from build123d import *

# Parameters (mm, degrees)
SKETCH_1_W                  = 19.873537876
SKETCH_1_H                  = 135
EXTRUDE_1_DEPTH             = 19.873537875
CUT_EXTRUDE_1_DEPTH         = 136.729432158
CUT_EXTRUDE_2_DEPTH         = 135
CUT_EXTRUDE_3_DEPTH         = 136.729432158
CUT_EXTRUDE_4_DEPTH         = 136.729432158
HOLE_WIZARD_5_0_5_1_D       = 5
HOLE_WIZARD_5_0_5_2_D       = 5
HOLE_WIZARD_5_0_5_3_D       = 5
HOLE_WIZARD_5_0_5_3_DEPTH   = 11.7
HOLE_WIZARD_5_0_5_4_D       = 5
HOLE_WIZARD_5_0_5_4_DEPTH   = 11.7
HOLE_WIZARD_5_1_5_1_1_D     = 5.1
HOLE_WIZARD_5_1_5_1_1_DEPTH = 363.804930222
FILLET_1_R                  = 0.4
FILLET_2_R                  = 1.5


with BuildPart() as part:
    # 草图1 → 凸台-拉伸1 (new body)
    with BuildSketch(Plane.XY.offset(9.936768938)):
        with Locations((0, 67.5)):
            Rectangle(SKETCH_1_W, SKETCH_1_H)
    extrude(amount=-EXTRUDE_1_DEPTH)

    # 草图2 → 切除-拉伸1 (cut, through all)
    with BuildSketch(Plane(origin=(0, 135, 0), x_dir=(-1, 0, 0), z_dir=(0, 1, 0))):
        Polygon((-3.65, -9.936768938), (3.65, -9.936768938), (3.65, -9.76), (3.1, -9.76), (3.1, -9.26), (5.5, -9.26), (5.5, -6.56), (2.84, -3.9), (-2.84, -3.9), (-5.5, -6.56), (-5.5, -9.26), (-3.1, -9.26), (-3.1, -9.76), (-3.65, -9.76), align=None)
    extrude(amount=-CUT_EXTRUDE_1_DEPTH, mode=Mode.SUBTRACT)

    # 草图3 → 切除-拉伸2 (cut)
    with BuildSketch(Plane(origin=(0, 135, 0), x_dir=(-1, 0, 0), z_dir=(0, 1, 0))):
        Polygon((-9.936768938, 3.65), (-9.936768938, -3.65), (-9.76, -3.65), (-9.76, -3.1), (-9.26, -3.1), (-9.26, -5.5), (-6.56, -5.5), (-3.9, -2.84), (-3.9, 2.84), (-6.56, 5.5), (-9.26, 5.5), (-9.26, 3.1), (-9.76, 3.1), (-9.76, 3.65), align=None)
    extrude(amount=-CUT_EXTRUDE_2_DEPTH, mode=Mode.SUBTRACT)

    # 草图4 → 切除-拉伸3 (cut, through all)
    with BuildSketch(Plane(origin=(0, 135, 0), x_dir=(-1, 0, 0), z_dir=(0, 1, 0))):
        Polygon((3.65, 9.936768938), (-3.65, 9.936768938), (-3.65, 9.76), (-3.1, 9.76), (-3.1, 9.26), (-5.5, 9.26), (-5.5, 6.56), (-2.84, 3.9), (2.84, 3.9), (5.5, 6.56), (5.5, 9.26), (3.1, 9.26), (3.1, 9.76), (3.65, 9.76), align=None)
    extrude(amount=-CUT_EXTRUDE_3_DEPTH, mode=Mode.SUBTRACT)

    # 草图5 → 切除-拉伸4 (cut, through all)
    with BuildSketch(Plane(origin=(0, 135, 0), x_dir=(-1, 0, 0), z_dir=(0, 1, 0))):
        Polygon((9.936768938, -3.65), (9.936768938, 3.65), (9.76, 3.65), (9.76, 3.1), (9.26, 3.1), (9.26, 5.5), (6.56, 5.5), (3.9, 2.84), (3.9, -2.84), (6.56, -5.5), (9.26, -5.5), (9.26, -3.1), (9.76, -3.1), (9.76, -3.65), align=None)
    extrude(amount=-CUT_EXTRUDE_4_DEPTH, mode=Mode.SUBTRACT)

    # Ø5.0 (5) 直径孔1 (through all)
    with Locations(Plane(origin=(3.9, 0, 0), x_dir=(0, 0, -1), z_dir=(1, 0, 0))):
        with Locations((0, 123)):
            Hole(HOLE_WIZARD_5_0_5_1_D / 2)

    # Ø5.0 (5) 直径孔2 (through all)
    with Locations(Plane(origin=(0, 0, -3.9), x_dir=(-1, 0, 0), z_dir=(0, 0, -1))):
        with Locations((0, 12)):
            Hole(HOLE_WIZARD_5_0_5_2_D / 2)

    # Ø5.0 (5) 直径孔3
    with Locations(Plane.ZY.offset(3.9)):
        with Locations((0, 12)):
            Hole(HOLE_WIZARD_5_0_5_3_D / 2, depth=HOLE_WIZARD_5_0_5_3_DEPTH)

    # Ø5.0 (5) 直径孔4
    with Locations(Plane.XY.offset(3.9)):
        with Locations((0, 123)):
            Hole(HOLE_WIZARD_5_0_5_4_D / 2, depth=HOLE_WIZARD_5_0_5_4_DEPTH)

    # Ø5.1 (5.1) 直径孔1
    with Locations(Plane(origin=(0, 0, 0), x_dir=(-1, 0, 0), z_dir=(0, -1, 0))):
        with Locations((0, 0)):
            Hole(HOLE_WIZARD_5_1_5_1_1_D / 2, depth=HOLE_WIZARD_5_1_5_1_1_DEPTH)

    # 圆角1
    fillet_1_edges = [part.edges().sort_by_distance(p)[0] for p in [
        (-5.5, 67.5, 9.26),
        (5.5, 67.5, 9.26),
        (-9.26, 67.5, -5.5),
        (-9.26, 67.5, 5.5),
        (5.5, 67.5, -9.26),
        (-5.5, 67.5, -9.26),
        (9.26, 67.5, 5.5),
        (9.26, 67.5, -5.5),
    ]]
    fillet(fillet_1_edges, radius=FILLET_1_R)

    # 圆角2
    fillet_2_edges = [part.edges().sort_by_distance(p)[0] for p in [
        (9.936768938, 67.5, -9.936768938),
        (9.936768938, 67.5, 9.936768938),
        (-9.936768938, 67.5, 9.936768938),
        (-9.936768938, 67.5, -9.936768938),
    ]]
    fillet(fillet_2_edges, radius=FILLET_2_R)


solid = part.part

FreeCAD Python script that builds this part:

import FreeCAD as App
import Part
import Sketcher
from FreeCAD import Vector
Q = App.Units.Quantity


def edges_at(feature, points):
    """Names of the edges that pass closest to the given points."""
    edges = feature.Shape.Edges
    near = lambda p: min(range(len(edges)), key=lambda i: edges[i].distToShape(Part.Vertex(*p))[0])
    return sorted({f"Edge{near(p) + 1}" for p in points})


def add_polygon(sketch, points):
    """Adds a closed chain of lines whose ends are joined by coincident constraints."""
    first, n = sketch.GeometryCount, len(points)
    for a, b in zip(points, points[1:] + points[:1]):
        sketch.addGeometry(Part.LineSegment(App.Vector(*a, 0), App.Vector(*b, 0)), False)
    for i in range(n):
        sketch.addConstraint(Sketcher.Constraint("Coincident", first + i, 2, first + (i + 1) % n, 1))

doc = App.newDocument("Part")
body = doc.addObject("PartDesign::Body", "Body")

# Sketch on XY plane
sketch1 = body.newObject("Sketcher::SketchObject", "Sketch")
sketch1.AttachmentSupport = (doc.getObject("XY_Plane"), [""])
sketch1.MapMode = "FlatFace"
sketch1.AttachmentOffset = App.Placement(Vector(0, 0, 9.936769), App.Rotation())
add_polygon(sketch1, [(-9.936769, 135), (-9.936769, 0), (9.936769, 0), (9.936769, 135)])  # lines 0-3
sketch1.addConstraint(Sketcher.Constraint("Vertical", 0))
sketch1.addConstraint(Sketcher.Constraint("Horizontal", 1))
sketch1.addConstraint(Sketcher.Constraint("Vertical", 2))
sketch1.addConstraint(Sketcher.Constraint("Horizontal", 3))
sketch1.addConstraint(Sketcher.Constraint("Symmetric", 0, 2, 1, 2, -1, 1))
sketch1.addConstraint(Sketcher.Constraint("DistanceY", 0, 2, 0, 1, Q("135 mm")))
sketch1.addConstraint(Sketcher.Constraint("DistanceX", 1, 1, 1, 2, Q("19.873538 mm")))
pad1 = body.newObject("PartDesign::Pad", "Pad")
pad1.Profile = sketch1
pad1.Length = 19.873538
pad1.Reversed = True

# Sketch on XZ plane
sketch2 = body.newObject("Sketcher::SketchObject", "Sketch001")
sketch2.AttachmentSupport = (doc.getObject("XZ_Plane"), [""])
sketch2.MapMode = "FlatFace"
sketch2.AttachmentOffset = App.Placement(Vector(0, 0, -135), App.Rotation())
add_polygon(sketch2, [(3.65, -9.936769), (-3.65, -9.936769), (-3.65, -9.76), (-3.1, -9.76), (-3.1, -9.26), (-5.5, -9.26), (-5.5, -6.56), (-2.84, -3.9), (2.84, -3.9), (5.5, -6.56), (5.5, -9.26), (3.1, -9.26), (3.1, -9.76), (3.65, -9.76)])  # lines 0-13
sketch2.addConstraint(Sketcher.Constraint("Horizontal", 0))
sketch2.addConstraint(Sketcher.Constraint("Vertical", 1))
sketch2.addConstraint(Sketcher.Constraint("Horizontal", 2))
sketch2.addConstraint(Sketcher.Constraint("Vertical", 3))
sketch2.addConstraint(Sketcher.Constraint("Horizontal", 4))
sketch2.addConstraint(Sketcher.Constraint("Vertical", 5))
sketch2.addConstraint(Sketcher.Constraint("Horizontal", 7))
sketch2.addConstraint(Sketcher.Constraint("Vertical", 9))
sketch2.addConstraint(Sketcher.Constraint("Horizontal", 10))
sketch2.addConstraint(Sketcher.Constraint("Vertical", 11))
sketch2.addConstraint(Sketcher.Constraint("Horizontal", 12))
sketch2.addConstraint(Sketcher.Constraint("Vertical", 13))
sketch2.addConstraint(Sketcher.Constraint("Symmetric", 5, 2, 8, 2, -2))
sketch2.addConstraint(Sketcher.Constraint("Symmetric", 3, 2, 10, 2, -2))
sketch2.addConstraint(Sketcher.Constraint("Symmetric", 1, 2, 12, 2, -2))
sketch2.addConstraint(Sketcher.Constraint("Perpendicular", 6, 8))
sketch2.addConstraint(Sketcher.Constraint("Equal", 6, 8))
sketch2.addConstraint(Sketcher.Constraint("DistanceX", 0, 2, 0, 1, Q("7.3 mm")))
sketch2.addConstraint(Sketcher.Constraint("DistanceX", 4, 2, 4, 1, Q("2.4 mm")))
sketch2.addConstraint(Sketcher.Constraint("DistanceY", 3, 1, 3, 2, Q("0.5 mm")))
sketch2.addConstraint(Sketcher.Constraint("DistanceY", 5, 1, 5, 2, Q("2.7 mm")))
sketch2.addConstraint(Sketcher.Constraint("DistanceX", 2, 1, 2, 2, Q("0.55 mm")))
sketch2.addConstraint(Sketcher.Constraint("DistanceX", 7, 1, 7, 2, Q("5.68 mm")))
sketch2.addConstraint(Sketcher.Constraint("DistanceY", 6, 2, -1, 1, Q("3.9 mm")))
sketch2.addConstraint(Sketcher.Constraint("DistanceY", 1, 1, 1, 2, Q("0.176769 mm")))
pocket1 = body.newObject("PartDesign::Pocket", "Pocket")
pocket1.Profile = sketch2
pocket1.Type = "ThroughAll"
pocket1.Reversed = True

# Sketch on XZ plane
sketch3 = body.newObject("Sketcher::SketchObject", "Sketch002")
sketch3.AttachmentSupport = (doc.getObject("XZ_Plane"), [""])
sketch3.MapMode = "FlatFace"
sketch3.AttachmentOffset = App.Placement(Vector(0, 0, -135), App.Rotation())
add_polygon(sketch3, [(9.936769, 3.65), (9.936769, -3.65), (9.76, -3.65), (9.76, -3.1), (9.26, -3.1), (9.26, -5.5), (6.56, -5.5), (3.9, -2.84), (3.9, 2.84), (6.56, 5.5), (9.26, 5.5), (9.26, 3.1), (9.76, 3.1), (9.76, 3.65)])  # lines 0-13
sketch3.addConstraint(Sketcher.Constraint("Vertical", 0))
sketch3.addConstraint(Sketcher.Constraint("Horizontal", 1))
sketch3.addConstraint(Sketcher.Constraint("Vertical", 2))
sketch3.addConstraint(Sketcher.Constraint("Horizontal", 3))
sketch3.addConstraint(Sketcher.Constraint("Vertical", 4))
sketch3.addConstraint(Sketcher.Constraint("Horizontal", 5))
sketch3.addConstraint(Sketcher.Constraint("Vertical", 7))
sketch3.addConstraint(Sketcher.Constraint("Horizontal", 9))
sketch3.addConstraint(Sketcher.Constraint("Vertical", 10))
sketch3.addConstraint(Sketcher.Constraint("Horizontal", 11))
sketch3.addConstraint(Sketcher.Constraint("Vertical", 12))
sketch3.addConstraint(Sketcher.Constraint("Horizontal", 13))
sketch3.addConstraint(Sketcher.Constraint("Symmetric", 5, 2, 8, 2, -1))
sketch3.addConstraint(Sketcher.Constraint("Symmetric", 3, 2, 10, 2, -1))
sketch3.addConstraint(Sketcher.Constraint("Symmetric", 1, 2, 12, 2, -1))
sketch3.addConstraint(Sketcher.Constraint("Perpendicular", 6, 8))
sketch3.addConstraint(Sketcher.Constraint("Equal", 6, 8))
sketch3.addConstraint(Sketcher.Constraint("DistanceX", 3, 2, 3, 1, Q("0.5 mm")))
sketch3.addConstraint(Sketcher.Constraint("DistanceX", 5, 2, 5, 1, Q("2.7 mm")))
sketch3.addConstraint(Sketcher.Constraint("DistanceY", 0, 2, 0, 1, Q("7.3 mm")))
sketch3.addConstraint(Sketcher.Constraint("DistanceY", 4, 2, 4, 1, Q("2.4 mm")))
sketch3.addConstraint(Sketcher.Constraint("DistanceY", 2, 1, 2, 2, Q("0.55 mm")))
sketch3.addConstraint(Sketcher.Constraint("DistanceY", 7, 1, 7, 2, Q("5.68 mm")))
sketch3.addConstraint(Sketcher.Constraint("DistanceX", -1, 1, 6, 2, Q("3.9 mm")))
sketch3.addConstraint(Sketcher.Constraint("DistanceX", 1, 2, 1, 1, Q("0.176769 mm")))
pocket2 = body.newObject("PartDesign::Pocket", "Pocket001")
pocket2.Profile = sketch3
pocket2.Length = 135
pocket2.Reversed = True

# Sketch on XZ plane
sketch4 = body.newObject("Sketcher::SketchObject", "Sketch003")
sketch4.AttachmentSupport = (doc.getObject("XZ_Plane"), [""])
sketch4.MapMode = "FlatFace"
sketch4.AttachmentOffset = App.Placement(Vector(0, 0, -135), App.Rotation())
add_polygon(sketch4, [(-3.65, 9.936769), (3.65, 9.936769), (3.65, 9.76), (3.1, 9.76), (3.1, 9.26), (5.5, 9.26), (5.5, 6.56), (2.84, 3.9), (-2.84, 3.9), (-5.5, 6.56), (-5.5, 9.26), (-3.1, 9.26), (-3.1, 9.76), (-3.65, 9.76)])  # lines 0-13
sketch4.addConstraint(Sketcher.Constraint("Horizontal", 0))
sketch4.addConstraint(Sketcher.Constraint("Vertical", 1))
sketch4.addConstraint(Sketcher.Constraint("Horizontal", 2))
sketch4.addConstraint(Sketcher.Constraint("Vertical", 3))
sketch4.addConstraint(Sketcher.Constraint("Horizontal", 4))
sketch4.addConstraint(Sketcher.Constraint("Vertical", 5))
sketch4.addConstraint(Sketcher.Constraint("Horizontal", 7))
sketch4.addConstraint(Sketcher.Constraint("Vertical", 9))
sketch4.addConstraint(Sketcher.Constraint("Horizontal", 10))
sketch4.addConstraint(Sketcher.Constraint("Vertical", 11))
sketch4.addConstraint(Sketcher.Constraint("Horizontal", 12))
sketch4.addConstraint(Sketcher.Constraint("Vertical", 13))
sketch4.addConstraint(Sketcher.Constraint("Symmetric", 5, 2, 8, 2, -2))
sketch4.addConstraint(Sketcher.Constraint("Symmetric", 3, 2, 10, 2, -2))
sketch4.addConstraint(Sketcher.Constraint("Symmetric", 1, 2, 12, 2, -2))
sketch4.addConstraint(Sketcher.Constraint("Perpendicular", 6, 8))
sketch4.addConstraint(Sketcher.Constraint("Equal", 6, 8))
sketch4.addConstraint(Sketcher.Constraint("DistanceX", 0, 1, 0, 2, Q("7.3 mm")))
sketch4.addConstraint(Sketcher.Constraint("DistanceX", 4, 1, 4, 2, Q("2.4 mm")))
sketch4.addConstraint(Sketcher.Constraint("DistanceY", 3, 2, 3, 1, Q("0.5 mm")))
sketch4.addConstraint(Sketcher.Constraint("DistanceY", 5, 2, 5, 1, Q("2.7 mm")))
sketch4.addConstraint(Sketcher.Constraint("DistanceX", 2, 2, 2, 1, Q("0.55 mm")))
sketch4.addConstraint(Sketcher.Constraint("DistanceX", 7, 2, 7, 1, Q("5.68 mm")))
sketch4.addConstraint(Sketcher.Constraint("DistanceY", -1, 1, 6, 2, Q("3.9 mm")))
sketch4.addConstraint(Sketcher.Constraint("DistanceY", 1, 2, 1, 1, Q("0.176769 mm")))
pocket3 = body.newObject("PartDesign::Pocket", "Pocket002")
pocket3.Profile = sketch4
pocket3.Type = "ThroughAll"
pocket3.Reversed = True

# Sketch on XZ plane
sketch5 = body.newObject("Sketcher::SketchObject", "Sketch004")
sketch5.AttachmentSupport = (doc.getObject("XZ_Plane"), [""])
sketch5.MapMode = "FlatFace"
sketch5.AttachmentOffset = App.Placement(Vector(0, 0, -135), App.Rotation())
add_polygon(sketch5, [(-9.936769, -3.65), (-9.936769, 3.65), (-9.76, 3.65), (-9.76, 3.1), (-9.26, 3.1), (-9.26, 5.5), (-6.56, 5.5), (-3.9, 2.84), (-3.9, -2.84), (-6.56, -5.5), (-9.26, -5.5), (-9.26, -3.1), (-9.76, -3.1), (-9.76, -3.65)])  # lines 0-13
sketch5.addConstraint(Sketcher.Constraint("Vertical", 0))
sketch5.addConstraint(Sketcher.Constraint("Horizontal", 1))
sketch5.addConstraint(Sketcher.Constraint("Vertical", 2))
sketch5.addConstraint(Sketcher.Constraint("Horizontal", 3))
sketch5.addConstraint(Sketcher.Constraint("Vertical", 4))
sketch5.addConstraint(Sketcher.Constraint("Horizontal", 5))
sketch5.addConstraint(Sketcher.Constraint("Vertical", 7))
sketch5.addConstraint(Sketcher.Constraint("Horizontal", 9))
sketch5.addConstraint(Sketcher.Constraint("Vertical", 10))
sketch5.addConstraint(Sketcher.Constraint("Horizontal", 11))
sketch5.addConstraint(Sketcher.Constraint("Vertical", 12))
sketch5.addConstraint(Sketcher.Constraint("Horizontal", 13))
sketch5.addConstraint(Sketcher.Constraint("Symmetric", 5, 2, 8, 2, -1))
sketch5.addConstraint(Sketcher.Constraint("Symmetric", 3, 2, 10, 2, -1))
sketch5.addConstraint(Sketcher.Constraint("Symmetric", 1, 2, 12, 2, -1))
sketch5.addConstraint(Sketcher.Constraint("Perpendicular", 6, 8))
sketch5.addConstraint(Sketcher.Constraint("Equal", 6, 8))
sketch5.addConstraint(Sketcher.Constraint("DistanceX", 3, 1, 3, 2, Q("0.5 mm")))
sketch5.addConstraint(Sketcher.Constraint("DistanceX", 5, 1, 5, 2, Q("2.7 mm")))
sketch5.addConstraint(Sketcher.Constraint("DistanceY", 0, 1, 0, 2, Q("7.3 mm")))
sketch5.addConstraint(Sketcher.Constraint("DistanceY", 4, 1, 4, 2, Q("2.4 mm")))
sketch5.addConstraint(Sketcher.Constraint("DistanceY", 2, 2, 2, 1, Q("0.55 mm")))
sketch5.addConstraint(Sketcher.Constraint("DistanceY", 7, 2, 7, 1, Q("5.68 mm")))
sketch5.addConstraint(Sketcher.Constraint("DistanceX", 6, 2, -1, 1, Q("3.9 mm")))
sketch5.addConstraint(Sketcher.Constraint("DistanceX", 1, 1, 1, 2, Q("0.176769 mm")))
pocket4 = body.newObject("PartDesign::Pocket", "Pocket003")
pocket4.Profile = sketch5
pocket4.Type = "ThroughAll"
pocket4.Reversed = True

# Sketch on YZ plane
sketch6 = body.newObject("Sketcher::SketchObject", "Sketch005")
sketch6.AttachmentSupport = (doc.getObject("YZ_Plane"), [""])
sketch6.MapMode = "FlatFace"
sketch6.AttachmentOffset = App.Placement(Vector(0, 0, 3.9), App.Rotation())
sketch6.addGeometry(Part.Circle(Vector(123, 0, 0), Vector(0, 0, 1), 2.5), False)
sketch6.addConstraint(Sketcher.Constraint("PointOnObject", 0, 3, -1))
sketch6.addConstraint(Sketcher.Constraint("Diameter", 0, Q("5 mm")))
sketch6.addConstraint(Sketcher.Constraint("DistanceX", -1, 1, 0, 3, Q("123 mm")))
doc.recompute()
hole = body.newObject("PartDesign::Hole", "Hole")
hole.Profile = sketch6
hole.ThreadType = "None"
hole.Diameter = 5
hole.DepthType = "ThroughAll"

# Sketch on XY plane
sketch7 = body.newObject("Sketcher::SketchObject", "Sketch006")
sketch7.AttachmentSupport = (doc.getObject("XY_Plane"), [""])
sketch7.MapMode = "FlatFace"
sketch7.AttachmentOffset = App.Placement(Vector(0, 0, -3.9), App.Rotation())
sketch7.addGeometry(Part.Circle(Vector(0, 12, 0), Vector(0, 0, 1), 2.5), False)
sketch7.addConstraint(Sketcher.Constraint("PointOnObject", 0, 3, -2))
sketch7.addConstraint(Sketcher.Constraint("Diameter", 0, Q("5 mm")))
sketch7.addConstraint(Sketcher.Constraint("DistanceY", -1, 1, 0, 3, Q("12 mm")))
doc.recompute()
hole2 = body.newObject("PartDesign::Hole", "Hole001")
hole2.Profile = sketch7
hole2.ThreadType = "None"
hole2.Diameter = 5
hole2.DepthType = "ThroughAll"
hole2.Reversed = True

# Sketch on YZ plane
sketch8 = body.newObject("Sketcher::SketchObject", "Sketch007")
sketch8.AttachmentSupport = (doc.getObject("YZ_Plane"), [""])
sketch8.MapMode = "FlatFace"
sketch8.AttachmentOffset = App.Placement(Vector(0, 0, -3.9), App.Rotation())
sketch8.addGeometry(Part.Circle(Vector(12, 0, 0), Vector(0, 0, 1), 2.5), False)
sketch8.addConstraint(Sketcher.Constraint("PointOnObject", 0, 3, -1))
sketch8.addConstraint(Sketcher.Constraint("Diameter", 0, Q("5 mm")))
sketch8.addConstraint(Sketcher.Constraint("DistanceX", -1, 1, 0, 3, Q("12 mm")))
doc.recompute()
hole3 = body.newObject("PartDesign::Hole", "Hole002")
hole3.Profile = sketch8
hole3.ThreadType = "None"
hole3.Diameter = 5
hole3.DepthType = "Dimension"
hole3.Depth = 11.7
hole3.DrillPoint = "Flat"
hole3.Reversed = True

# Sketch on XY plane
sketch9 = body.newObject("Sketcher::SketchObject", "Sketch008")
sketch9.AttachmentSupport = (doc.getObject("XY_Plane"), [""])
sketch9.MapMode = "FlatFace"
sketch9.AttachmentOffset = App.Placement(Vector(0, 0, 3.9), App.Rotation())
sketch9.addGeometry(Part.Circle(Vector(0, 123, 0), Vector(0, 0, 1), 2.5), False)
sketch9.addConstraint(Sketcher.Constraint("PointOnObject", 0, 3, -2))
sketch9.addConstraint(Sketcher.Constraint("Diameter", 0, Q("5 mm")))
sketch9.addConstraint(Sketcher.Constraint("DistanceY", -1, 1, 0, 3, Q("123 mm")))
doc.recompute()
hole4 = body.newObject("PartDesign::Hole", "Hole003")
hole4.Profile = sketch9
hole4.ThreadType = "None"
hole4.Diameter = 5
hole4.DepthType = "Dimension"
hole4.Depth = 11.7
hole4.DrillPoint = "Flat"

# Sketch on XZ plane
sketch10 = body.newObject("Sketcher::SketchObject", "Sketch009")
sketch10.AttachmentSupport = (doc.getObject("XZ_Plane"), [""])
sketch10.MapMode = "FlatFace"
sketch10.addGeometry(Part.Circle(Vector(0, 0, 0), Vector(0, 0, 1), 2.55), False)
sketch10.addConstraint(Sketcher.Constraint("Coincident", 0, 3, -1, 1))
sketch10.addConstraint(Sketcher.Constraint("Diameter", 0, Q("5.1 mm")))
doc.recompute()
hole5 = body.newObject("PartDesign::Hole", "Hole004")
hole5.Profile = sketch10
hole5.ThreadType = "None"
hole5.Diameter = 5.1
hole5.DepthType = "Dimension"
hole5.Depth = 363.80493
hole5.DrillPoint = "Flat"
doc.recompute()

fillet = body.newObject("PartDesign::Fillet", "Fillet")
fillet.Base = (hole5, edges_at(hole5, [
    (-5.5, 67.5, 9.26),
    (5.5, 67.5, 9.26),
    (-9.26, 67.5, -5.5),
    (-9.26, 67.5, 5.5),
    (5.5, 67.5, -9.26),
    (-5.5, 67.5, -9.26),
    (9.26, 67.5, 5.5),
    (9.26, 67.5, -5.5),
]))
fillet.Radius = 0.4
doc.recompute()

fillet2 = body.newObject("PartDesign::Fillet", "Fillet001")
fillet2.Base = (fillet, edges_at(fillet, [
    (9.937, 67.5, -9.937),
    (9.937, 67.5, 9.937),
    (-9.937, 67.5, 9.937),
    (-9.937, 67.5, -9.937),
]))
fillet2.Radius = 1.5

doc.recompute()
